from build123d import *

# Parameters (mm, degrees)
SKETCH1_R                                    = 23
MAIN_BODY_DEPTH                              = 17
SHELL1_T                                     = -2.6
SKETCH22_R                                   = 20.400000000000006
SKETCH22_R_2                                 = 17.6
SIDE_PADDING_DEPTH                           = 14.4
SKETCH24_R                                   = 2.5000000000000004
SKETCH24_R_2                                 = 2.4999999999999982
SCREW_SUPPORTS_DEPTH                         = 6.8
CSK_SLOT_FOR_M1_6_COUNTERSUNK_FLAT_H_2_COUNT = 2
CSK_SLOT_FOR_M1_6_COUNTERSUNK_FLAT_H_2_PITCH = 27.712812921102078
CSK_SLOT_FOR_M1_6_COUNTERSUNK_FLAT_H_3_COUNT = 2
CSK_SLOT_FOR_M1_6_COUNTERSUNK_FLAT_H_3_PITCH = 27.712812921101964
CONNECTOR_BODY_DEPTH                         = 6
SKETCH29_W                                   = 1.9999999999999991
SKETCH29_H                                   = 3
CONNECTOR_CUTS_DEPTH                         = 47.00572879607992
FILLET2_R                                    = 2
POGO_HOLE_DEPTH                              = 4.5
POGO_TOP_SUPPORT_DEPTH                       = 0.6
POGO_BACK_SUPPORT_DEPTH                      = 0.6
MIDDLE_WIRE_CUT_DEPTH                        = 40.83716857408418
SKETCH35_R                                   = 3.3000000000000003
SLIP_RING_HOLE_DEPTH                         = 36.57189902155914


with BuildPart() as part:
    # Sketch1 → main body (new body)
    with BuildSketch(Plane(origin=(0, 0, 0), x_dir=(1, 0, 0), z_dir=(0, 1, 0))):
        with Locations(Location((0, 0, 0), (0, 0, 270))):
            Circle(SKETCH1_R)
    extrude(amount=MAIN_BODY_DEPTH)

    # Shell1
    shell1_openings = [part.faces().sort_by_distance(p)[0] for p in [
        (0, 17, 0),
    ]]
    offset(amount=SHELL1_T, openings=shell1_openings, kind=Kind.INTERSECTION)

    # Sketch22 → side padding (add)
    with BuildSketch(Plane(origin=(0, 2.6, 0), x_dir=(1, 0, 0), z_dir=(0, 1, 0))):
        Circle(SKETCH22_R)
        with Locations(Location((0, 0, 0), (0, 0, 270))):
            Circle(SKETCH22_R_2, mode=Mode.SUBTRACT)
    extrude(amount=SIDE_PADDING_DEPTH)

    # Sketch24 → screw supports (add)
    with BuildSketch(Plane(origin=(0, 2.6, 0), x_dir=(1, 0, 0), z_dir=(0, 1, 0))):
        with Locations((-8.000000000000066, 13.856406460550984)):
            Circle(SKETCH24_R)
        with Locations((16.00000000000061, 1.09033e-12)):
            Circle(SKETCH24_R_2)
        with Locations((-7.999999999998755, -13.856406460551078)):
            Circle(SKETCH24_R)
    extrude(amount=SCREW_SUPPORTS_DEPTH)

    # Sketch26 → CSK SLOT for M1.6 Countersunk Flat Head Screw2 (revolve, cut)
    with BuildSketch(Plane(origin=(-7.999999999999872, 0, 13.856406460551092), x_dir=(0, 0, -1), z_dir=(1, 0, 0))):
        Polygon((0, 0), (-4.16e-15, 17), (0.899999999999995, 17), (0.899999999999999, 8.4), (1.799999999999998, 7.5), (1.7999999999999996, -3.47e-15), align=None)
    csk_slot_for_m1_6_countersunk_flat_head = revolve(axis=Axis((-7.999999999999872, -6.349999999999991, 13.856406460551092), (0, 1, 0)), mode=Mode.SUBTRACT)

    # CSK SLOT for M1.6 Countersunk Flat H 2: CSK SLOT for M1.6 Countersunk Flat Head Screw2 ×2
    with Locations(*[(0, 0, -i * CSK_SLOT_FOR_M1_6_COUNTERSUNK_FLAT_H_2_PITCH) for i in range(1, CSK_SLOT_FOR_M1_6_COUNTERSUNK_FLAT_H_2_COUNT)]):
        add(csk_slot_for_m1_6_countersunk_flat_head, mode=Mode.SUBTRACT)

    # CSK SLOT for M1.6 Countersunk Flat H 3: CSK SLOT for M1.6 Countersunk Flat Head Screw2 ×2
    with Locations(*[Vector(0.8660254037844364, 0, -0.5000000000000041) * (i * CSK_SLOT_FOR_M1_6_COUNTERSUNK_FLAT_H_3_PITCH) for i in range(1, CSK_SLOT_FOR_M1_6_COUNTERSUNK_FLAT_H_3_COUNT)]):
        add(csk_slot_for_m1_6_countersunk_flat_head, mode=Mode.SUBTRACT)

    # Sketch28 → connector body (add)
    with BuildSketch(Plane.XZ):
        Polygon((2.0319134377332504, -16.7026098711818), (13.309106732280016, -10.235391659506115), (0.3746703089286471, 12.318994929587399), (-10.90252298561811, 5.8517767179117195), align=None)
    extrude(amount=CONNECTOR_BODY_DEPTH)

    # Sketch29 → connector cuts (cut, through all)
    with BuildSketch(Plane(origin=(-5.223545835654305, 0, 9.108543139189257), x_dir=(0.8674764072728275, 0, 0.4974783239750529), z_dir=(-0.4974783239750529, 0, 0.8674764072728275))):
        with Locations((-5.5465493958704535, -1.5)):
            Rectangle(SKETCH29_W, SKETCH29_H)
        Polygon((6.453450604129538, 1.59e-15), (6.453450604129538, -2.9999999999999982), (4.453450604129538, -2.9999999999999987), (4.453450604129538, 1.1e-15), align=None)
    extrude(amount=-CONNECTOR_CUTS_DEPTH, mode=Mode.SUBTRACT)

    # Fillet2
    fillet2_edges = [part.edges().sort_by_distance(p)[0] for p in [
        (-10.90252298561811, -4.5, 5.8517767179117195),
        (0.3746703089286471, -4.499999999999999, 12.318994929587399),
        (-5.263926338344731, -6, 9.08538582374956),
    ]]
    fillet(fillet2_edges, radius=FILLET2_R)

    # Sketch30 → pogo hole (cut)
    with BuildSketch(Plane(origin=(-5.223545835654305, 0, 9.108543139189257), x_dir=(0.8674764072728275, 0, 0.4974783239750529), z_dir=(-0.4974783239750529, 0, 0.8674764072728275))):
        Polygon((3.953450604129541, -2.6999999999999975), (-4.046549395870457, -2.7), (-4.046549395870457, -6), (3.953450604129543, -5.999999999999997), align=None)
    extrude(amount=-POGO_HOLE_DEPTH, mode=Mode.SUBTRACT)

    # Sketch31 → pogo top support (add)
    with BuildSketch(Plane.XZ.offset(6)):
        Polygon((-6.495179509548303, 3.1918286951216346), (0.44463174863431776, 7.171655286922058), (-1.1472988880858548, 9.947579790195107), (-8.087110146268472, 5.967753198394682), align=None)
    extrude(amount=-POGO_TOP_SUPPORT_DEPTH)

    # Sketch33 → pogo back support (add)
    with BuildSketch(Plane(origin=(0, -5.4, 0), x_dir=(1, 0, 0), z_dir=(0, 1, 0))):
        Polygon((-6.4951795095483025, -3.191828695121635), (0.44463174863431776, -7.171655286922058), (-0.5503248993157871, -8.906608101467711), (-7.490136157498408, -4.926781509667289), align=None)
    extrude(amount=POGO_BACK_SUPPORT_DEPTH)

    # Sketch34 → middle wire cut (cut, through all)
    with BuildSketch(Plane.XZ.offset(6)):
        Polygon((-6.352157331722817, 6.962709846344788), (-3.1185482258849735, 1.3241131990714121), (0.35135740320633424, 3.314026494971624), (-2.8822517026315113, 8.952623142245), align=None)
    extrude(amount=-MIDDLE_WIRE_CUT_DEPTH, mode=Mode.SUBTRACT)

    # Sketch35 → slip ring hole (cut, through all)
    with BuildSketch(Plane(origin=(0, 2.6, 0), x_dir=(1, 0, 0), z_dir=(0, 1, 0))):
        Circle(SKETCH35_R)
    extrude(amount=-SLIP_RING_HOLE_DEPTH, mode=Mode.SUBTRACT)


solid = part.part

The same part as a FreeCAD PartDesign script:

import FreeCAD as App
import Part
import Sketcher
Q = App.Units.Quantity


def edges_at(feature, points):
    """Names of the edges that pass closest to the given points."""
    edges = feature.Shape.Edges
    near = lambda p: min(range(len(edges)), key=lambda i: edges[i].distToShape(Part.Vertex(*p))[0])
    return sorted({f"Edge{near(p) + 1}" for p in points})


def faces_at(feature, points):
    """Names of the faces that lie closest to the given points."""
    faces = feature.Shape.Faces
    near = lambda p: min(range(len(faces)), key=lambda i: faces[i].distToShape(Part.Vertex(*p))[0])
    return sorted({f"Face{near(p) + 1}" for p in points})

doc = App.newDocument("Part")
body = doc.addObject("PartDesign::Body", "Body")

# Sketch on XZ plane
sketch1 = doc.addObject("Sketcher::SketchObject", "Sketch")
body.addObject(sketch1)
sketch1.AttachmentSupport = (doc.XZ_Plane, [""])
sketch1.MapMode = "FlatFace"
sketch1.addGeometry(Part.Circle(App.Vector(0, 0, 0), App.Vector(0, 0, 1), 23), False)
sketch1.addConstraint([
    Sketcher.Constraint("Coincident", 0, 3, -1, 1),
    Sketcher.Constraint("Diameter", 0, Q("46 mm")),
])
pad1 = doc.addObject("PartDesign::Pad", "Pad")
body.addObject(pad1)
pad1.Profile = sketch1
pad1.Length = 17
pad1.Reversed = True
doc.recompute()

thickness = doc.addObject("PartDesign::Thickness", "Thickness")
body.addObject(thickness)
thickness.Base = (pad1, faces_at(pad1, [(0, 17, 0)]))
thickness.Value = 2.6
thickness.Reversed = True
thickness.Join = "Intersection"

# Sketch on XZ plane
sketch2 = doc.addObject("Sketcher::SketchObject", "Sketch001")
body.addObject(sketch2)
sketch2.AttachmentSupport = (doc.XZ_Plane, [""])
sketch2.MapMode = "FlatFace"
sketch2.AttachmentOffset = App.Placement(App.Vector(0, 0, -2.6), App.Rotation())
sketch2.addGeometry([
    Part.Circle(App.Vector(0, 0, 0), App.Vector(0, 0, 1), 20),
    Part.Circle(App.Vector(0, 0, 0), App.Vector(0, 0, 1), 18),
], False)
sketch2.addConstraint([
    Sketcher.Constraint("Coincident", 0, 3, -1, 1),
    Sketcher.Constraint("Coincident", 1, 3, -1, 1),
    Sketcher.Constraint("Diameter", 0, Q("40.8 mm")),
    Sketcher.Constraint("Diameter", 1, Q("35.2 mm")),
])
pad2 = doc.addObject("PartDesign::Pad", "Pad001")
body.addObject(pad2)
pad2.Profile = sketch2
pad2.Length = 14.4
pad2.Reversed = True

# Sketch on XZ plane
sketch3 = doc.addObject("Sketcher::SketchObject", "Sketch002")
body.addObject(sketch3)
sketch3.AttachmentSupport = (doc.XZ_Plane, [""])
sketch3.MapMode = "FlatFace"
sketch3.AttachmentOffset = App.Placement(App.Vector(0, 0, -2.6), App.Rotation())
sketch3.addGeometry([
    Part.Circle(App.Vector(-8, -13.9, 0), App.Vector(0, 0, 1), 2.5),
    Part.Circle(App.Vector(16, 0, 0), App.Vector(0, 0, 1), 2.5),
    Part.Circle(App.Vector(-8, 13.9, 0), App.Vector(0, 0, 1), 2.5),
], False)
sketch3.addConstraint([
    Sketcher.Constraint("Equal", 0, 1),
    Sketcher.Constraint("Equal", 1, 2),
    Sketcher.Constraint("Symmetric", 0, 3, 2, 3, -1),
    Sketcher.Constraint("PointOnObject", 1, 3, -1),
    Sketcher.Constraint("Diameter", 0, Q("5 mm")),
    Sketcher.Constraint("DistanceX", 0, 3, -1, 1, Q("8 mm")),
    Sketcher.Constraint("DistanceX", -1, 1, 1, 3, Q("16 mm")),
    Sketcher.Constraint("DistanceY", 0, 3, -1, 1, Q("13.856406 mm")),
])
pad3 = doc.addObject("PartDesign::Pad", "Pad002")
body.addObject(pad3)
pad3.Profile = sketch3
pad3.Length = 6.8
pad3.Reversed = True

# Sketch on YZ plane
sketch4 = doc.addObject("Sketcher::SketchObject", "Sketch003")
body.addObject(sketch4)
sketch4.AttachmentSupport = (doc.YZ_Plane, [""])
sketch4.MapMode = "FlatFace"
sketch4.AttachmentOffset = App.Placement(App.Vector(0, 0, -8), App.Rotation())
sketch4.addGeometry([
    Part.LineSegment(App.Vector(17, 13.9, 0), App.Vector(0, 13.9, 0)),  # 0
    Part.LineSegment(App.Vector(0, 13.9, 0), App.Vector(0, 12.1, 0)),  # 1
    Part.LineSegment(App.Vector(0, 12.1, 0), App.Vector(7.5, 12.1, 0)),  # 2
    Part.LineSegment(App.Vector(7.5, 12.1, 0), App.Vector(8.4, 13, 0)),  # 3
    Part.LineSegment(App.Vector(8.4, 13, 0), App.Vector(17, 13, 0)),  # 4
    Part.LineSegment(App.Vector(17, 13, 0), App.Vector(17, 13.9, 0)),  # 5
], False)
sketch4.addGeometry(Part.LineSegment(App.Vector(0, 13.9, 0), App.Vector(17, 13.9, 0)), True)  # axis
sketch4.addConstraint([
    Sketcher.Constraint("Coincident", 0, 2, 1, 1),
    Sketcher.Constraint("Coincident", 1, 2, 2, 1),
    Sketcher.Constraint("Coincident", 2, 2, 3, 1),
    Sketcher.Constraint("Coincident", 3, 2, 4, 1),
    Sketcher.Constraint("Coincident", 4, 2, 5, 1),
    Sketcher.Constraint("Coincident", 5, 2, 0, 1),
    Sketcher.Constraint("Horizontal", 0),
    Sketcher.Constraint("Vertical", 1),
    Sketcher.Constraint("Horizontal", 2),
    Sketcher.Constraint("Horizontal", 4),
    Sketcher.Constraint("Vertical", 5),
    Sketcher.Constraint("Horizontal", 6),
    Sketcher.Constraint("Coincident", 6, 1, 0, 2),
    Sketcher.Constraint("PointOnObject", 0, 2, -2),
    Sketcher.Constraint("Vertical", 4, 2, 6, 2),
    Sketcher.Constraint("DistanceX", 0, 2, 0, 1, Q("17 mm")),
    Sketcher.Constraint("Angle", 3, Q("45 deg")),
    Sketcher.Constraint("DistanceX", 2, 1, 2, 2, Q("7.5 mm")),
    Sketcher.Constraint("DistanceX", 4, 1, 4, 2, Q("8.6 mm")),
    Sketcher.Constraint("DistanceY", 1, 2, 1, 1, Q("1.8 mm")),
    Sketcher.Constraint("DistanceY", -1, 1, 0, 2, Q("13.856406 mm")),
])
groove = doc.addObject("PartDesign::Groove", "Groove")
body.addObject(groove)
groove.Profile = sketch4
groove.ReferenceAxis = (sketch4, ["Axis0"])
groove.Angle = 360
doc.recompute()

linearpattern = doc.addObject("PartDesign::LinearPattern", "LinearPattern")
body.addObject(linearpattern)
linearpattern.Originals = [groove]
linearpattern.Direction = (doc.Z_Axis, [""])
linearpattern.Mode = "offset"
linearpattern.Offset = 27.712813
linearpattern.Occurrences = 2
linearpattern.Reversed = True
body.Tip = linearpattern
doc.recompute()

datumline = doc.addObject("PartDesign::Line", "DatumLine")
body.addObject(datumline)
datumline.Placement = App.Placement(App.Vector(0, 0, 0), App.Rotation(App.Vector(0, 0, 1), App.Vector(0.866025404, 0, -0.5)))
linearpattern2 = doc.addObject("PartDesign::LinearPattern", "LinearPattern001")
body.addObject(linearpattern2)
linearpattern2.Originals = [groove]
linearpattern2.Direction = (datumline, [""])
linearpattern2.Mode = "offset"
linearpattern2.Offset = 27.712813
linearpattern2.Occurrences = 2
body.Tip = linearpattern2

# Sketch on XZ plane
sketch5 = doc.addObject("Sketcher::SketchObject", "Sketch004")
body.addObject(sketch5)
sketch5.AttachmentSupport = (doc.XZ_Plane, [""])
sketch5.MapMode = "FlatFace"
sketch5.addGeometry([
    Part.LineSegment(App.Vector(2, -17, 0), App.Vector(13, -10, 0)),
    Part.LineSegment(App.Vector(13, -10, 0), App.Vector(0, 12, 0)),
    Part.LineSegment(App.Vector(0, 12, 0), App.Vector(-11, 6, 0)),
    Part.LineSegment(App.Vector(-11, 6, 0), App.Vector(2, -17, 0)),
], False)
sketch5.addConstraint([
    Sketcher.Constraint("Coincident", 0, 2, 1, 1),
    Sketcher.Constraint("Coincident", 1, 2, 2, 1),
    Sketcher.Constraint("Coincident", 2, 2, 3, 1),
    Sketcher.Constraint("Coincident", 3, 2, 0, 1),
    Sketcher.Constraint("Perpendicular", 0, 1),
    Sketcher.Constraint("Perpendicular", 1, 2),
    Sketcher.Constraint("Perpendicular", 2, 3),
    Sketcher.Constraint("Distance", 0, Q("13 mm")),
    Sketcher.Constraint("Distance", 1, Q("26 mm")),
    Sketcher.Constraint("DistanceY", 0, 2, -1, 1, Q("10.235392 mm")),
    Sketcher.Constraint("DistanceX", -1, 1, 1, 2, Q("0.37467 mm")),
    Sketcher.Constraint("DistanceY", 3, 2, -1, 1, Q("16.70261 mm")),
])
pad4 = doc.addObject("PartDesign::Pad", "Pad003")
body.addObject(pad4)
pad4.Profile = sketch5
pad4.Length = 6

# Sketch on an angled plane
sketch6 = doc.addObject("Sketcher::SketchObject", "Sketch005")
body.addObject(sketch6)
sketch6.Placement = App.Placement(App.Vector(-5.223546, 0, 9.108543), App.Rotation(App.Vector(0.867476407, 0, 0.497478324), App.Vector(0, 1, 0), App.Vector(-0.497478324, 0, 0.867476407), "ZXY"))
sketch6.addGeometry([
    Part.LineSegment(App.Vector(-6.5, 0, 0), App.Vector(-6.5, -3, 0)),  # 0
    Part.LineSegment(App.Vector(-6.5, -3, 0), App.Vector(-4.5, -3, 0)),  # 1
    Part.LineSegment(App.Vector(-4.5, -3, 0), App.Vector(-4.5, 0, 0)),  # 2
    Part.LineSegment(App.Vector(-4.5, 0, 0), App.Vector(-6.5, 0, 0)),  # 3
    Part.LineSegment(App.Vector(6.5, -3, 0), App.Vector(6.5, 0, 0)),  # 4
    Part.LineSegment(App.Vector(6.5, 0, 0), App.Vector(4.5, 0, 0)),  # 5
    Part.LineSegment(App.Vector(4.5, 0, 0), App.Vector(4.5, -3, 0)),  # 6
    Part.LineSegment(App.Vector(4.5, -3, 0), App.Vector(6.5, -3, 0)),  # 7
], False)
sketch6.addConstraint([
    Sketcher.Constraint("Coincident", 0, 2, 1, 1),
    Sketcher.Constraint("Coincident", 1, 2, 2, 1),
    Sketcher.Constraint("Coincident", 2, 2, 3, 1),
    Sketcher.Constraint("Coincident", 3, 2, 0, 1),
    Sketcher.Constraint("Coincident", 4, 2, 5, 1),
    Sketcher.Constraint("Coincident", 5, 2, 6, 1),
    Sketcher.Constraint("Coincident", 6, 2, 7, 1),
    Sketcher.Constraint("Coincident", 7, 2, 4, 1),
    Sketcher.Constraint("Vertical", 0),
    Sketcher.Constraint("Horizontal", 1),
    Sketcher.Constraint("Vertical", 2),
    Sketcher.Constraint("Horizontal", 3),
    Sketcher.Constraint("Vertical", 4),
    Sketcher.Constraint("Horizontal", 5),
    Sketcher.Constraint("Vertical", 6),
    Sketcher.Constraint("Horizontal", 7),
    Sketcher.Constraint("PointOnObject", 2, 2, -1),
    Sketcher.Constraint("PointOnObject", 4, 2, -1),
    Sketcher.Constraint("Horizontal", 1, 2, 6, 2),
    Sketcher.Constraint("Equal", 3, 5),
    Sketcher.Constraint("DistanceX", 1, 1, 1, 2, Q("2 mm")),
    Sketcher.Constraint("DistanceY", 0, 2, 0, 1, Q("3 mm")),
    Sketcher.Constraint("DistanceX", 2, 2, 4, 2, Q("11 mm")),
    Sketcher.Constraint("DistanceX", 0, 2, -1, 1, Q("6.546549 mm")),
])
pocket1 = doc.addObject("PartDesign::Pocket", "Pocket")
body.addObject(pocket1)
pocket1.Profile = sketch6
pocket1.Type = "ThroughAll"
doc.recompute()

fillet = doc.addObject("PartDesign::Fillet", "Fillet")
body.addObject(fillet)
fillet.Base = (pocket1, edges_at(pocket1, [(-10.903, -4.5, 5.852), (0.375, -4.5, 12.319), (-5.264, -6, 9.085)]))
fillet.Radius = 2

# Sketch on an angled plane
sketch7 = doc.addObject("Sketcher::SketchObject", "Sketch006")
body.addObject(sketch7)
sketch7.Placement = App.Placement(App.Vector(-5.223546, 0, 9.108543), App.Rotation(App.Vector(0.867476407, 0, 0.497478324), App.Vector(0, 1, 0), App.Vector(-0.497478324, 0, 0.867476407), "ZXY"))
sketch7.addGeometry([
    Part.LineSegment(App.Vector(4, -2.7, 0), App.Vector(-4, -2.7, 0)),
    Part.LineSegment(App.Vector(-4, -2.7, 0), App.Vector(-4, -6, 0)),
    Part.LineSegment(App.Vector(-4, -6, 0), App.Vector(4, -6, 0)),
    Part.LineSegment(App.Vector(4, -6, 0), App.Vector(4, -2.7, 0)),
], False)
sketch7.addConstraint([
    Sketcher.Constraint("Coincident", 0, 2, 1, 1),
    Sketcher.Constraint("Coincident", 1, 2, 2, 1),
    Sketcher.Constraint("Coincident", 2, 2, 3, 1),
    Sketcher.Constraint("Coincident", 3, 2, 0, 1),
    Sketcher.Constraint("Horizontal", 0),
    Sketcher.Constraint("Vertical", 1),
    Sketcher.Constraint("Horizontal", 2),
    Sketcher.Constraint("Vertical", 3),
    Sketcher.Constraint("DistanceX", 0, 2, 0, 1, Q("8 mm")),
    Sketcher.Constraint("DistanceY", 1, 2, 1, 1, Q("3.3 mm")),
    Sketcher.Constraint("DistanceY", 1, 2, -1, 1, Q("6 mm")),
    Sketcher.Constraint("DistanceX", 0, 2, -1, 1, Q("4.046549 mm")),
])
pocket2 = doc.addObject("PartDesign::Pocket", "Pocket001")
body.addObject(pocket2)
pocket2.Profile = sketch7
pocket2.Length = 4.5

# Sketch on XZ plane
sketch8 = doc.addObject("Sketcher::SketchObject", "Sketch007")
body.addObject(sketch8)
sketch8.AttachmentSupport = (doc.XZ_Plane, [""])
sketch8.MapMode = "FlatFace"
sketch8.AttachmentOffset = App.Placement(App.Vector(0, 0, 6), App.Rotation())
sketch8.addGeometry([
    Part.LineSegment(App.Vector(-6.5, 3.2, 0), App.Vector(0.4, 7.2, 0)),
    Part.LineSegment(App.Vector(0.4, 7.2, 0), App.Vector(-1.1, 9.9, 0)),
    Part.LineSegment(App.Vector(-1.1, 9.9, 0), App.Vector(-8.1, 6, 0)),
    Part.LineSegment(App.Vector(-8.1, 6, 0), App.Vector(-6.5, 3.2, 0)),
], False)
sketch8.addConstraint([
    Sketcher.Constraint("Coincident", 0, 2, 1, 1),
    Sketcher.Constraint("Coincident", 1, 2, 2, 1),
    Sketcher.Constraint("Coincident", 2, 2, 3, 1),
    Sketcher.Constraint("Coincident", 3, 2, 0, 1),
    Sketcher.Constraint("Perpendicular", 0, 1),
    Sketcher.Constraint("Perpendicular", 1, 2),
    Sketcher.Constraint("Perpendicular", 2, 3),
    Sketcher.Constraint("Distance", 0, Q("8 mm")),
    Sketcher.Constraint("Distance", 1, Q("3.2 mm")),
    Sketcher.Constraint("DistanceX", 1, 2, -1, 1, Q("1.147299 mm")),
    Sketcher.Constraint("DistanceX", -1, 1, 0, 2, Q("0.444632 mm")),
    Sketcher.Constraint("DistanceY", -1, 1, 1, 2, Q("9.94758 mm")),
])
pad5 = doc.addObject("PartDesign::Pad", "Pad004")
body.addObject(pad5)
pad5.Profile = sketch8
pad5.Length = 0.6
pad5.Reversed = True

# Sketch on XZ plane
sketch9 = doc.addObject("Sketcher::SketchObject", "Sketch008")
body.addObject(sketch9)
sketch9.AttachmentSupport = (doc.XZ_Plane, [""])
sketch9.MapMode = "FlatFace"
sketch9.AttachmentOffset = App.Placement(App.Vector(0, 0, 5.4), App.Rotation())
sketch9.addGeometry([
    Part.LineSegment(App.Vector(0.4, 7.2, 0), App.Vector(-6.5, 3.2, 0)),
    Part.LineSegment(App.Vector(-6.5, 3.2, 0), App.Vector(-7.5, 4.9, 0)),
    Part.LineSegment(App.Vector(-7.5, 4.9, 0), App.Vector(-0.6, 8.9, 0)),
    Part.LineSegment(App.Vector(-0.6, 8.9, 0), App.Vector(0.4, 7.2, 0)),
], False)
sketch9.addConstraint([
    Sketcher.Constraint("Coincident", 0, 2, 1, 1),
    Sketcher.Constraint("Coincident", 1, 2, 2, 1),
    Sketcher.Constraint("Coincident", 2, 2, 3, 1),
    Sketcher.Constraint("Coincident", 3, 2, 0, 1),
    Sketcher.Constraint("Perpendicular", 0, 1),
    Sketcher.Constraint("Perpendicular", 1, 2),
    Sketcher.Constraint("Perpendicular", 2, 3),
    Sketcher.Constraint("Distance", 0, Q("8 mm")),
    Sketcher.Constraint("Distance", 1, Q("2 mm")),
    Sketcher.Constraint("DistanceX", 0, 2, -1, 1, Q("6.49518 mm")),
    Sketcher.Constraint("DistanceY", -1, 1, 0, 2, Q("3.191829 mm")),
    Sketcher.Constraint("DistanceY", -1, 1, 1, 2, Q("4.926782 mm")),
])
pad6 = doc.addObject("PartDesign::Pad", "Pad005")
body.addObject(pad6)
pad6.Profile = sketch9
pad6.Length = 0.6
pad6.Reversed = True

# Sketch on XZ plane
sketch10 = doc.addObject("Sketcher::SketchObject", "Sketch009")
body.addObject(sketch10)
sketch10.AttachmentSupport = (doc.XZ_Plane, [""])
sketch10.MapMode = "FlatFace"
sketch10.AttachmentOffset = App.Placement(App.Vector(0, 0, 6), App.Rotation())
sketch10.addGeometry([
    Part.LineSegment(App.Vector(-6.4, 7, 0), App.Vector(-3.1, 1.3, 0)),
    Part.LineSegment(App.Vector(-3.1, 1.3, 0), App.Vector(0.4, 3.3, 0)),
    Part.LineSegment(App.Vector(0.4, 3.3, 0), App.Vector(-2.9, 9, 0)),
    Part.LineSegment(App.Vector(-2.9, 9, 0), App.Vector(-6.4, 7, 0)),
], False)
sketch10.addConstraint([
    Sketcher.Constraint("Coincident", 0, 2, 1, 1),
    Sketcher.Constraint("Coincident", 1, 2, 2, 1),
    Sketcher.Constraint("Coincident", 2, 2, 3, 1),
    Sketcher.Constraint("Coincident", 3, 2, 0, 1),
    Sketcher.Constraint("Perpendicular", 0, 1),
    Sketcher.Constraint("Perpendicular", 1, 2),
    Sketcher.Constraint("Perpendicular", 2, 3),
    Sketcher.Constraint("Distance", 1, Q("4 mm")),
    Sketcher.Constraint("Distance", 0, Q("6.5 mm")),
    Sketcher.Constraint("DistanceX", 0, 2, -1, 1, Q("3.118548 mm")),
    Sketcher.Constraint("DistanceX", 2, 2, -1, 1, Q("2.882252 mm")),
    Sketcher.Constraint("DistanceY", -1, 1, 3, 2, Q("6.96271 mm")),
])
pocket3 = doc.addObject("PartDesign::Pocket", "Pocket002")
body.addObject(pocket3)
pocket3.Profile = sketch10
pocket3.Type = "ThroughAll"

# Sketch on XZ plane
sketch11 = doc.addObject("Sketcher::SketchObject", "Sketch010")
body.addObject(sketch11)
sketch11.AttachmentSupport = (doc.XZ_Plane, [""])
sketch11.MapMode = "FlatFace"
sketch11.AttachmentOffset = App.Placement(App.Vector(0, 0, -2.6), App.Rotation())
sketch11.addGeometry(Part.Circle(App.Vector(0, 0, 0), App.Vector(0, 0, 1), 3.3), False)
sketch11.addConstraint([
    Sketcher.Constraint("Coincident", 0, 3, -1, 1),
    Sketcher.Constraint("Diameter", 0, Q("6.6 mm")),
])
pocket4 = doc.addObject("PartDesign::Pocket", "Pocket003")
body.addObject(pocket4)
pocket4.Profile = sketch11
pocket4.Type = "ThroughAll"
pocket4.Reversed = True

doc.recompute()
